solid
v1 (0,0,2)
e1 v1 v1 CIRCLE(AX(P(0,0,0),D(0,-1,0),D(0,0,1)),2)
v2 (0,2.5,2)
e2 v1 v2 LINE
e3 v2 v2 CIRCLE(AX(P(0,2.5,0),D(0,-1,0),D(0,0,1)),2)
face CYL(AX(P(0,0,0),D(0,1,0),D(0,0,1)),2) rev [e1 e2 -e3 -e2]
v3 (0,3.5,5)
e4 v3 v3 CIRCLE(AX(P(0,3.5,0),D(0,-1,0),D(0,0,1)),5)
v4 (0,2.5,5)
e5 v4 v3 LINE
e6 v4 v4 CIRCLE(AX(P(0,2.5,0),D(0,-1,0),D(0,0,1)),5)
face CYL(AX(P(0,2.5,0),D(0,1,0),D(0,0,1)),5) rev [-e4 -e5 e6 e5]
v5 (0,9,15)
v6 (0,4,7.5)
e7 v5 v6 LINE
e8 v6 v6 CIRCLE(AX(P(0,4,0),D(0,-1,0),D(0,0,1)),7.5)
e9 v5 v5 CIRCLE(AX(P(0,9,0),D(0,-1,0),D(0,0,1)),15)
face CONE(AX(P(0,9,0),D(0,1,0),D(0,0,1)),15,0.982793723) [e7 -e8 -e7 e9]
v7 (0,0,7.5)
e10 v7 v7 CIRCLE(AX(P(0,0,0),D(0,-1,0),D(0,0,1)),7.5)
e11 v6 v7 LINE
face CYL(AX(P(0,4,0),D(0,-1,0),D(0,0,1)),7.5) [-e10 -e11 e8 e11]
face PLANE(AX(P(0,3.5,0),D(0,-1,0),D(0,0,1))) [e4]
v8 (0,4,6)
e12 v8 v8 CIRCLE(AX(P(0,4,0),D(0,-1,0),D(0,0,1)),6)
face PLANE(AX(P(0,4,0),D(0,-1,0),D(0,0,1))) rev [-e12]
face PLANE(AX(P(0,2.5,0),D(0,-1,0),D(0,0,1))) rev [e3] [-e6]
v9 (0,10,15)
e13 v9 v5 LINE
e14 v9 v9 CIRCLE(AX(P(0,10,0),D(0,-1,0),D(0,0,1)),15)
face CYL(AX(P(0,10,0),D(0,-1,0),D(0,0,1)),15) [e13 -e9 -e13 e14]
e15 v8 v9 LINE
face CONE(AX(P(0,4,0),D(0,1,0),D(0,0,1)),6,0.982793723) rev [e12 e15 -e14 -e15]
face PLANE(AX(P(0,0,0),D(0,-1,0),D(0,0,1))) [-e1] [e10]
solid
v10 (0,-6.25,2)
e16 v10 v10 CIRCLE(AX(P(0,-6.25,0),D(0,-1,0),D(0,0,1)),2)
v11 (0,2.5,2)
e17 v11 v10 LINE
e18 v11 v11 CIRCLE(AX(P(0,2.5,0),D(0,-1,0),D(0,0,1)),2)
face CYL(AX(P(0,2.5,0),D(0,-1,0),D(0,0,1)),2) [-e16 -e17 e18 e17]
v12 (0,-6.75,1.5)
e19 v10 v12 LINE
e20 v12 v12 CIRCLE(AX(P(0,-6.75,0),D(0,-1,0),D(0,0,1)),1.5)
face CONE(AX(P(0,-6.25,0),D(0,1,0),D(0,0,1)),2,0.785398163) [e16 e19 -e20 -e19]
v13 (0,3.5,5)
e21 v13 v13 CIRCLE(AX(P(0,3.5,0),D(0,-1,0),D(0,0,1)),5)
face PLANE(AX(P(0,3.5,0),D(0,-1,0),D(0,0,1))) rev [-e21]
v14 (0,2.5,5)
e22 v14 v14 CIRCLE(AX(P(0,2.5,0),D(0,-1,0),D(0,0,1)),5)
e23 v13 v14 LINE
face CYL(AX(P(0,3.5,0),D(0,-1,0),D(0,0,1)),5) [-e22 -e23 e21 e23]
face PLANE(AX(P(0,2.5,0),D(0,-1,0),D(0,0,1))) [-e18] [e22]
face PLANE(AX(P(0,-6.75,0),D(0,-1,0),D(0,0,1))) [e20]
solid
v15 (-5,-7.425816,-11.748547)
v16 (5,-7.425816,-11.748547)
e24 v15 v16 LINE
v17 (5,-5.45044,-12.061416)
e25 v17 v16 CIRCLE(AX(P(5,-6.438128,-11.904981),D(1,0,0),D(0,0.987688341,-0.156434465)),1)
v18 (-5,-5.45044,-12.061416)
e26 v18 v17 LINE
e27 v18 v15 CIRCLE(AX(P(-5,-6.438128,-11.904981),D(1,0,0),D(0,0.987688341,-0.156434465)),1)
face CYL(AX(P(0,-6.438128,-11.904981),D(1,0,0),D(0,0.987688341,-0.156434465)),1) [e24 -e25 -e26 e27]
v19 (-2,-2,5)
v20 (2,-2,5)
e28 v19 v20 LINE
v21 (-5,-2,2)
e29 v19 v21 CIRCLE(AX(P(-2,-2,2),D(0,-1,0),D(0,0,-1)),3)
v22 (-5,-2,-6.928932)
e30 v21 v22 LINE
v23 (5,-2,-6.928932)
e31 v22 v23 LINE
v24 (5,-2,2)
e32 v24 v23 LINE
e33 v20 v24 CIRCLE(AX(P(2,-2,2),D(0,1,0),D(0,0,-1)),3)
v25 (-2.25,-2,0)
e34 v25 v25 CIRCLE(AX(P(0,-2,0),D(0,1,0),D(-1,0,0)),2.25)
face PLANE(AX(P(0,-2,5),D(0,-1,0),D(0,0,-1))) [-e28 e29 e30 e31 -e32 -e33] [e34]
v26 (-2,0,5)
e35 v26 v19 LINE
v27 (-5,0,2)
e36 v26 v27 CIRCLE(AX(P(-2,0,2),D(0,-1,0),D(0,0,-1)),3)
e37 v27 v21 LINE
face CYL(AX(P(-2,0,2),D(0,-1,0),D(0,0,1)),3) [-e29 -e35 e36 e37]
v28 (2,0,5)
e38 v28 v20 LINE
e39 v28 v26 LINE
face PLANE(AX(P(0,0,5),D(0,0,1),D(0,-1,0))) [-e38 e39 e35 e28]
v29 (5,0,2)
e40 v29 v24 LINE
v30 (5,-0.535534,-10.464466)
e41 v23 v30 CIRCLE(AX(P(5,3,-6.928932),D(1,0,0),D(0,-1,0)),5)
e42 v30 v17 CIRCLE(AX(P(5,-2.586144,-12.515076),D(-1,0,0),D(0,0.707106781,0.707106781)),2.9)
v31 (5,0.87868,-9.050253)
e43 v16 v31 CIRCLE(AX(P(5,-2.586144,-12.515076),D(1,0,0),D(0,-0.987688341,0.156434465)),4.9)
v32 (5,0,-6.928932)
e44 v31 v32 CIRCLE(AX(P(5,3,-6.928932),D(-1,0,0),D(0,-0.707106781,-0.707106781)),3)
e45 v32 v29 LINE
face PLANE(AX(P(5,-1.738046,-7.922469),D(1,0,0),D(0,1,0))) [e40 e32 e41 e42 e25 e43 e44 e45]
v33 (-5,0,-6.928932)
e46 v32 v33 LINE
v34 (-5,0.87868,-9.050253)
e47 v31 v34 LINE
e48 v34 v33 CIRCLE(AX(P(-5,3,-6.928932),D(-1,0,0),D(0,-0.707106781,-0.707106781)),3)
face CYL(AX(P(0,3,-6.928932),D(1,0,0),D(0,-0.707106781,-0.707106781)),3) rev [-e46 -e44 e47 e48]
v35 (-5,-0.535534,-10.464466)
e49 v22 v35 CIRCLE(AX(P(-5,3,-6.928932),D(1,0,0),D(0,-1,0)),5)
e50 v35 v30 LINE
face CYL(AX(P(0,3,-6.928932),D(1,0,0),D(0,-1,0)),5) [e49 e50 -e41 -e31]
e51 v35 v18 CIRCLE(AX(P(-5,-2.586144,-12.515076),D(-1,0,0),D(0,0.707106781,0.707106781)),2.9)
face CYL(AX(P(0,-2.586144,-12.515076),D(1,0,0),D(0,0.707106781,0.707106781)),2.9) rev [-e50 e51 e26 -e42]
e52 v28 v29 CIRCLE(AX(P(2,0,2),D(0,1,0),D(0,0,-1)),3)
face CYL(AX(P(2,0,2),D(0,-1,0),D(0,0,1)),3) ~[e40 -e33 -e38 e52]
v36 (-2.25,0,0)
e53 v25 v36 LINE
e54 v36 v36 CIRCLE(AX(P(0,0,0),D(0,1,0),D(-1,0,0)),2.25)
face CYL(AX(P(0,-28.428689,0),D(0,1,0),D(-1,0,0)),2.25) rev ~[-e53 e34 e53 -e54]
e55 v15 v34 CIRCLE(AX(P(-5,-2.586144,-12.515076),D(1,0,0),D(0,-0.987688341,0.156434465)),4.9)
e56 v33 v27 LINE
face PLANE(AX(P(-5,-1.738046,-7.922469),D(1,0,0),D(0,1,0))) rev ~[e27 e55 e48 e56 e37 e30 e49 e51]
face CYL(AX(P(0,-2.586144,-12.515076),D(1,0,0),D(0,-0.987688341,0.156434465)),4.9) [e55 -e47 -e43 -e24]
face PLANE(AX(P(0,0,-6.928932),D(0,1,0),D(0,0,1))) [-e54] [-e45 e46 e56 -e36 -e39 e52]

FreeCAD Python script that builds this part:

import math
import FreeCAD as App
import Part
import Sketcher
Q = App.Units.Quantity


def edges_at(feature, points):
    """Names of the edges that pass closest to the given points."""
    edges = feature.Shape.Edges
    near = lambda p: min(range(len(edges)), key=lambda i: edges[i].distToShape(Part.Vertex(*p))[0])
    return sorted({f"Edge{near(p) + 1}" for p in points})


def add_polygon(sketch, points):
    """Adds a closed chain of lines whose ends are joined by coincident constraints."""
    first, n = sketch.GeometryCount, len(points)
    for a, b in zip(points, points[1:] + points[:1]):
        sketch.addGeometry(Part.LineSegment(App.Vector(*a, 0), App.Vector(*b, 0)), False)
    for i in range(n):
        sketch.addConstraint(Sketcher.Constraint("Coincident", first + i, 2, first + (i + 1) % n, 1))

doc = App.newDocument("Part")
params = doc.addObject("Spreadsheet::Sheet", "Params")
for row, (alias, value) in enumerate([
    ("sketch1_width", "1 mm"),
    ("sketch1_width2", "4 mm"),
    ("sketch1_height", "5 mm"),
    ("sketch1_height2", "6 mm"),
    ("sketch1_height3", "3 mm"),
    ("revolution_angle", "360 deg"),
    ("sketch2_width", "1 mm"),
    ("sketch2_height", "5 mm"),
    ("sketch2_height2", "3 mm"),
    ("sketch2_width2", "10.25 mm"),
    ("revolution2_angle", "360 deg"),
    ("chamfer_size", "0.5 mm"),
    ("sketch3_radius", "5 mm"),
    ("sketch3_radius2", "1 mm"),
    ("sketch3_radius3", "2.9 mm"),
    ("pad1_length", "10 mm"),
    ("fillet_radius", "3 mm"),
    ("sketch4_diameter", "4.5 mm"),
    ("hole_diameter", "4.5 mm"),
], start=1):
    params.set(f"A{row}", alias)
    params.set(f"B{row}", "=" + value)
    params.setAlias(f"B{row}", alias)

body = doc.addObject("PartDesign::Body", "Body")

sketch1 = body.newObject("Sketcher::SketchObject", "Sketch")
sketch1.AttachmentSupport = (doc.getObject("YZ_Plane"), [""])
sketch1.MapMode = "FlatFace"
add_polygon(sketch1, [(3.5, 5), (3.5, 0), (4, 0), (4, 6), (10, 15), (9, 15), (4, 7.5), (0, 7.5), (0, 2), (2.5, 2), (2.5, 5)])
sketch1.addConstraint(Sketcher.Constraint("Vertical", 0))
sketch1.addConstraint(Sketcher.Constraint("Horizontal", 1))
sketch1.addConstraint(Sketcher.Constraint("Vertical", 2))
sketch1.addConstraint(Sketcher.Constraint("Horizontal", 4))
sketch1.addConstraint(Sketcher.Constraint("Horizontal", 6))
sketch1.addConstraint(Sketcher.Constraint("Vertical", 7))
sketch1.addConstraint(Sketcher.Constraint("Horizontal", 8))
sketch1.addConstraint(Sketcher.Constraint("Vertical", 9))
sketch1.addConstraint(Sketcher.Constraint("Horizontal", 10))
sketch1.addConstraint(Sketcher.Constraint("PointOnObject", 0, 2, -1))
sketch1.addConstraint(Sketcher.Constraint("PointOnObject", 6, 2, -2))
sketch1.addConstraint(Sketcher.Constraint("Parallel", 3, 5))
sketch1.addConstraint(Sketcher.Constraint("Vertical", 2, 2, 5, 2))
sketch1.addConstraint(Sketcher.Constraint("Equal", 4, 10))
sketch1.addConstraint(Sketcher.Constraint("DistanceX", 4, 2, 4, 1, Q("1 mm")))
sketch1.addConstraint(Sketcher.Constraint("DistanceX", 6, 2, 6, 1, Q("4 mm")))
sketch1.addConstraint(Sketcher.Constraint("DistanceY", 0, 2, 0, 1, Q("5 mm")))
sketch1.addConstraint(Sketcher.Constraint("DistanceY", 2, 1, 2, 2, Q("6 mm")))
sketch1.addConstraint(Sketcher.Constraint("DistanceY", 9, 1, 9, 2, Q("3 mm")))
sketch1.addConstraint(Sketcher.Constraint("DistanceX", 1, 1, 1, 2, Q("0.5 mm")))
sketch1.addConstraint(Sketcher.Constraint("DistanceY", 7, 2, 7, 1, Q("5.5 mm")))
sketch1.addConstraint(Sketcher.Constraint("DistanceX", -1, 1, 3, 2, Q("10 mm")))
sketch1.setExpression("Constraints[25]", "Params.sketch1_width")
sketch1.setExpression("Constraints[26]", "Params.sketch1_width2")
sketch1.setExpression("Constraints[27]", "Params.sketch1_height")
sketch1.setExpression("Constraints[28]", "Params.sketch1_height2")
sketch1.setExpression("Constraints[29]", "Params.sketch1_height3")
revolution = body.newObject("PartDesign::Revolution", "Revolution")
revolution.Profile = sketch1
revolution.ReferenceAxis = (sketch1, ["H_Axis"])
revolution.setExpression("Angle", "Params.revolution_angle")
body2 = doc.addObject("PartDesign::Body", "Body001")

sketch2 = body2.newObject("Sketcher::SketchObject", "Sketch001")
sketch2.AttachmentSupport = (doc.getObject("YZ_Plane001"), [""])
sketch2.MapMode = "FlatFace"
add_polygon(sketch2, [(-6.8, 0), (3.5, 0), (3.5, 5), (2.5, 5), (2.5, 2), (-6.8, 2)])
sketch2.addConstraint(Sketcher.Constraint("Horizontal", 0))
sketch2.addConstraint(Sketcher.Constraint("Vertical", 1))
sketch2.addConstraint(Sketcher.Constraint("Horizontal", 2))
sketch2.addConstraint(Sketcher.Constraint("Vertical", 3))
sketch2.addConstraint(Sketcher.Constraint("Horizontal", 4))
sketch2.addConstraint(Sketcher.Constraint("Vertical", 5))
sketch2.addConstraint(Sketcher.Constraint("PointOnObject", 0, 2, -1))
sketch2.addConstraint(Sketcher.Constraint("DistanceX", 2, 2, 2, 1, Q("1 mm")))
sketch2.addConstraint(Sketcher.Constraint("DistanceY", 1, 1, 1, 2, Q("5 mm")))
sketch2.addConstraint(Sketcher.Constraint("DistanceY", 3, 2, 3, 1, Q("3 mm")))
sketch2.addConstraint(Sketcher.Constraint("DistanceX", 0, 1, 0, 2, Q("10.25 mm")))
sketch2.addConstraint(Sketcher.Constraint("DistanceX", -1, 1, 0, 2, Q("3.5 mm")))
sketch2.setExpression("Constraints[13]", "Params.sketch2_width")
sketch2.setExpression("Constraints[14]", "Params.sketch2_height")
sketch2.setExpression("Constraints[15]", "Params.sketch2_height2")
sketch2.setExpression("Constraints[16]", "Params.sketch2_width2")
revolution2 = body2.newObject("PartDesign::Revolution", "Revolution001")
revolution2.Profile = sketch2
revolution2.ReferenceAxis = (sketch2, ["H_Axis"])
revolution2.setExpression("Angle", "Params.revolution2_angle")
doc.recompute()

chamfer = body2.newObject("PartDesign::Chamfer", "Chamfer")
chamfer.Base = (revolution2, edges_at(revolution2, [(0, -6.75, -2)]))
chamfer.setExpression("Size", "Params.chamfer_size")
body3 = doc.addObject("PartDesign::Body", "Body002")

sketch3 = body3.newObject("Sketcher::SketchObject", "Sketch002")
sketch3.AttachmentSupport = (doc.getObject("YZ_Plane002"), [""])
sketch3.MapMode = "FlatFace"
sketch3.addGeometry(Part.LineSegment(App.Vector(0, 5, 0), App.Vector(-2, 5, 0)), False)
sketch3.addGeometry(Part.LineSegment(App.Vector(-2, 5, 0), App.Vector(-2, -6.9, 0)), False)
sketch3.addGeometry(Part.ArcOfCircle(Part.Circle(App.Vector(3, -6.9, 0), App.Vector(0, 0, 1), 5), math.radians(180), math.radians(225)), False)
sketch3.addGeometry(Part.ArcOfCircle(Part.Circle(App.Vector(-2.6, -12.5, 0), App.Vector(0, 0, 1), 2.9), math.radians(171), math.radians(405)), False)
sketch3.addGeometry(Part.ArcOfCircle(Part.Circle(App.Vector(-6.4, -11.9, 0), App.Vector(0, 0, 1), 1), math.radians(-9), math.radians(171)), False)
sketch3.addGeometry(Part.ArcOfCircle(Part.Circle(App.Vector(-2.6, -12.5, 0), App.Vector(0, 0, 1), 4.9), math.radians(171), math.radians(405)), False)
sketch3.addGeometry(Part.ArcOfCircle(Part.Circle(App.Vector(3, -6.9, 0), App.Vector(0, 0, 1), 3), math.radians(180), math.radians(225)), False)
sketch3.addGeometry(Part.LineSegment(App.Vector(0, -6.9, 0), App.Vector(0, 5, 0)), False)
sketch3.addConstraint(Sketcher.Constraint("Coincident", 0, 2, 1, 1))
sketch3.addConstraint(Sketcher.Constraint("Tangent", 1, 2, 2, 1))
sketch3.addConstraint(Sketcher.Constraint("Tangent", 2, 2, 3, 2))
sketch3.addConstraint(Sketcher.Constraint("Tangent", 3, 1, 4, 1))
sketch3.addConstraint(Sketcher.Constraint("Tangent", 4, 2, 5, 1))
sketch3.addConstraint(Sketcher.Constraint("Tangent", 5, 2, 6, 2))
sketch3.addConstraint(Sketcher.Constraint("Tangent", 6, 1, 7, 1))
sketch3.addConstraint(Sketcher.Constraint("Coincident", 7, 2, 0, 1))
sketch3.addConstraint(Sketcher.Constraint("Horizontal", 0))
sketch3.addConstraint(Sketcher.Constraint("Vertical", 1))
sketch3.addConstraint(Sketcher.Constraint("Vertical", 7))
sketch3.addConstraint(Sketcher.Constraint("Coincident", 5, 3, 3, 3))
sketch3.addConstraint(Sketcher.Constraint("Coincident", 6, 3, 2, 3))
sketch3.addConstraint(Sketcher.Constraint("PointOnObject", 6, 1, -2))
sketch3.addConstraint(Sketcher.Constraint("Radius", 2, Q("5 mm")))
sketch3.addConstraint(Sketcher.Constraint("Radius", 4, Q("1 mm")))
sketch3.addConstraint(Sketcher.Constraint("Radius", 3, Q("2.9 mm")))
sketch3.addConstraint(Sketcher.Constraint("DistanceY", -1, 1, 0, 2, Q("5 mm")))
sketch3.addConstraint(Sketcher.Constraint("DistanceY", 1, 2, 1, 1, Q("11.928932 mm")))
sketch3.addConstraint(Sketcher.Constraint("DistanceX", 4, 3, -1, 1, Q("6.438128 mm")))
sketch3.addConstraint(Sketcher.Constraint("DistanceY", 4, 3, -1, 1, Q("11.904981 mm")))
sketch3.setExpression("Constraints[14]", "Params.sketch3_radius")
sketch3.setExpression("Constraints[15]", "Params.sketch3_radius2")
sketch3.setExpression("Constraints[16]", "Params.sketch3_radius3")
pad1 = body3.newObject("PartDesign::Pad", "Pad")
pad1.Profile = sketch3
pad1.setExpression("Length", "Params.pad1_length")
pad1.Midplane = True
doc.recompute()

fillet = body3.newObject("PartDesign::Fillet", "Fillet")
fillet.Base = (pad1, edges_at(pad1, [(-5, -1, 5), (5, -1, 5)]))
fillet.setExpression("Radius", "Params.fillet_radius")

sketch4 = body3.newObject("Sketcher::SketchObject", "Sketch003")
sketch4.AttachmentSupport = (doc.getObject("XZ_Plane002"), [""])
sketch4.MapMode = "FlatFace"
sketch4.AttachmentOffset = App.Placement(App.Vector(0, 0, 2), App.Rotation())
sketch4.addGeometry(Part.Circle(App.Vector(0, 0, 0), App.Vector(0, 0, 1), 2.2), False)
sketch4.addConstraint(Sketcher.Constraint("Coincident", 0, 3, -1, 1))
sketch4.addConstraint(Sketcher.Constraint("Diameter", 0, Q("4.5 mm")))
sketch4.setExpression("Constraints[1]", "Params.sketch4_diameter")
doc.recompute()
hole = body3.newObject("PartDesign::Hole", "Hole")
hole.Profile = sketch4
hole.ThreadType = "None"
hole.setExpression("Diameter", "Params.hole_diameter")
hole.DepthType = "ThroughAll"

doc.recompute()
